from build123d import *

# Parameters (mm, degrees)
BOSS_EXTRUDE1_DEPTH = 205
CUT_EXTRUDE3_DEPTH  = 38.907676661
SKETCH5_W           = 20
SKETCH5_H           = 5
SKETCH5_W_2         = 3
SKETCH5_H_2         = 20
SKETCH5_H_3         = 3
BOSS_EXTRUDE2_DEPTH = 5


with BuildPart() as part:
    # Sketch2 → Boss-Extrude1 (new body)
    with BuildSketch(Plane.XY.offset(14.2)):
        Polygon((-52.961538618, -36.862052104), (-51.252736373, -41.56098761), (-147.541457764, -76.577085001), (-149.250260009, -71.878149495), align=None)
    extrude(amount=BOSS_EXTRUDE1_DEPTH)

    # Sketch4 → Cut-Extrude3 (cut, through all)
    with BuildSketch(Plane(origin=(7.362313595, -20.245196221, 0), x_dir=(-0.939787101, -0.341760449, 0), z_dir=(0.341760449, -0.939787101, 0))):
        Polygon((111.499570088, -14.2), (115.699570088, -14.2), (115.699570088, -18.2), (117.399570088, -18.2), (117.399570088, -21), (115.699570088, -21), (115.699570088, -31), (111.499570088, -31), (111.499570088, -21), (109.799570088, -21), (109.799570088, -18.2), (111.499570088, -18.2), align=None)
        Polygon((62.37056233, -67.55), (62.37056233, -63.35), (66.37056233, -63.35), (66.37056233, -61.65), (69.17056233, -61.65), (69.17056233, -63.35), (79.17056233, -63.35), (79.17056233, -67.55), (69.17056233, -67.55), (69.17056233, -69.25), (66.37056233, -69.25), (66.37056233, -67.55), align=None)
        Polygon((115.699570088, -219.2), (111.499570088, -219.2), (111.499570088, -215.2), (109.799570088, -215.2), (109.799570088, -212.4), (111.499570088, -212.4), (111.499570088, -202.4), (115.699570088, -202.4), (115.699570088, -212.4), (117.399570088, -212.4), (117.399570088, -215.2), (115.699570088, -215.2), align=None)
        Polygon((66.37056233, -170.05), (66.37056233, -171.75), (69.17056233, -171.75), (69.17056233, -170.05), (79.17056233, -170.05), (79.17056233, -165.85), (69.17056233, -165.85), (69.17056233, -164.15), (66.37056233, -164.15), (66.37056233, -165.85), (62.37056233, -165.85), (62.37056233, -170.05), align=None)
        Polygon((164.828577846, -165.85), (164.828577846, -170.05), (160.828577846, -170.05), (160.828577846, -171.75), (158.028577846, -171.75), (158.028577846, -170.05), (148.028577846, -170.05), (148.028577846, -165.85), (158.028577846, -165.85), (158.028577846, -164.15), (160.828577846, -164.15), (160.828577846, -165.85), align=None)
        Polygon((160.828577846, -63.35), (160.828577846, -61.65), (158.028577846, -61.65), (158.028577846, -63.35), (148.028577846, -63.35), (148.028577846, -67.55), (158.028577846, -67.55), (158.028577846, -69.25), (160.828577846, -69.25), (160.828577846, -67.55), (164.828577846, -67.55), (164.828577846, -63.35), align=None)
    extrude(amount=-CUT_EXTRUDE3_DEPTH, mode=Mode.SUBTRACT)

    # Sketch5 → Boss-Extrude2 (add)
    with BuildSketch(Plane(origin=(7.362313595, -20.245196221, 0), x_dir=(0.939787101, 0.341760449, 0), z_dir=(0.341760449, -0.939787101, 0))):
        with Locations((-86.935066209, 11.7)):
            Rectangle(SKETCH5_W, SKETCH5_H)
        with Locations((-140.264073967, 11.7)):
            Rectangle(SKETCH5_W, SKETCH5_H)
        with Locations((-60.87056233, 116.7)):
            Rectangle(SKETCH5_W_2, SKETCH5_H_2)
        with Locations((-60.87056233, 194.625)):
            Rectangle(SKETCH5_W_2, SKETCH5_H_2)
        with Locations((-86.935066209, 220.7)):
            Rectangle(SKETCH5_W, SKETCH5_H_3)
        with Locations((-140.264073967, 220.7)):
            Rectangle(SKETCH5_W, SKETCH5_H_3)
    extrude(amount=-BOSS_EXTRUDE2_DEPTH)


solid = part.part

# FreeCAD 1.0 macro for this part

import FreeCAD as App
import Part
import Sketcher
from FreeCAD import Vector
Q = App.Units.Quantity


def add_polygon(sketch, points):
    """Adds a closed chain of lines whose ends are joined by coincident constraints."""
    first, n = sketch.GeometryCount, len(points)
    for a, b in zip(points, points[1:] + points[:1]):
        sketch.addGeometry(Part.LineSegment(App.Vector(*a, 0), App.Vector(*b, 0)), False)
    for i in range(n):
        sketch.addConstraint(Sketcher.Constraint("Coincident", first + i, 2, first + (i + 1) % n, 1))

doc = App.newDocument("Part")
body = doc.addObject("PartDesign::Body", "Body")

# Sketch on XY plane
sketch1 = body.newObject("Sketcher::SketchObject", "Sketch")
sketch1.AttachmentSupport = (doc.getObject("XY_Plane"), [""])
sketch1.MapMode = "FlatFace"
sketch1.AttachmentOffset = App.Placement(Vector(0, 0, 14.2), App.Rotation())
add_polygon(sketch1, [(-51, -42), (-53, -37), (-149, -72), (-148, -77)])  # lines 0-3
sketch1.addConstraint([
    Sketcher.Constraint("Perpendicular", 0, 1),
    Sketcher.Constraint("Perpendicular", 1, 2),
    Sketcher.Constraint("Perpendicular", 2, 3),
    Sketcher.Constraint("Distance", 0, Q("5 mm")),
    Sketcher.Constraint("DistanceX", 0, 2, -1, 1, Q("52.961539 mm")),
    Sketcher.Constraint("DistanceX", 1, 2, -1, 1, Q("149.25026 mm")),
    Sketcher.Constraint("DistanceY", 1, 2, -1, 1, Q("71.878149 mm")),
    Sketcher.Constraint("DistanceX", 2, 2, 0, 2, Q("94.579919 mm")),
])
pad1 = body.newObject("PartDesign::Pad", "Pad")
pad1.Profile = sketch1
pad1.Length = 205

# Sketch on an angled plane
sketch2 = body.newObject("Sketcher::SketchObject", "Sketch001")
sketch2.Placement = App.Placement(Vector(7.362314, -20.245196, 0), App.Rotation(Vector(-0.939787101, -0.341760449, 0), Vector(0, 0, -1), Vector(0.341760449, -0.939787101, 0), "ZXY"))
add_polygon(sketch2, [(115.7, -14.2), (111.5, -14.2), (111.5, -18.2), (109.8, -18.2), (109.8, -21), (111.5, -21), (111.5, -31), (115.7, -31), (115.7, -21), (117.4, -21), (117.4, -18.2), (115.7, -18.2)])  # lines 0-11
add_polygon(sketch2, [(62.4, -63.3), (62.4, -67.5), (66.4, -67.5), (66.4, -69.2), (69.2, -69.2), (69.2, -67.5), (79.2, -67.5), (79.2, -63.3), (69.2, -63.3), (69.2, -61.6), (66.4, -61.6), (66.4, -63.3)])  # lines 12-23
add_polygon(sketch2, [(111.5, -219.2), (115.7, -219.2), (115.7, -215.2), (117.4, -215.2), (117.4, -212.4), (115.7, -212.4), (115.7, -202.4), (111.5, -202.4), (111.5, -212.4), (109.8, -212.4), (109.8, -215.2), (111.5, -215.2)])  # lines 24-35
add_polygon(sketch2, [(66.4, -170), (66.4, -171.7), (69.2, -171.7), (69.2, -170), (79.2, -170), (79.2, -165.8), (69.2, -165.8), (69.2, -164.1), (66.4, -164.1), (66.4, -165.8), (62.4, -165.8), (62.4, -170)])  # lines 36-47
add_polygon(sketch2, [(164.8, -170), (164.8, -165.8), (160.8, -165.8), (160.8, -164.1), (158, -164.1), (158, -165.8), (148, -165.8), (148, -170), (158, -170), (158, -171.7), (160.8, -171.7), (160.8, -170)])  # lines 48-59
add_polygon(sketch2, [(160.8, -63.3), (160.8, -61.6), (158, -61.6), (158, -63.3), (148, -63.3), (148, -67.5), (158, -67.5), (158, -69.2), (160.8, -69.2), (160.8, -67.5), (164.8, -67.5), (164.8, -63.3)])  # lines 60-71
sketch2.addConstraint([
    Sketcher.Constraint("Horizontal", 0),
    Sketcher.Constraint("Vertical", 1),
    Sketcher.Constraint("Horizontal", 2),
    Sketcher.Constraint("Vertical", 3),
    Sketcher.Constraint("Horizontal", 4),
    Sketcher.Constraint("Vertical", 5),
    Sketcher.Constraint("Horizontal", 6),
    Sketcher.Constraint("Vertical", 7),
    Sketcher.Constraint("Horizontal", 8),
    Sketcher.Constraint("Vertical", 9),
    Sketcher.Constraint("Horizontal", 10),
    Sketcher.Constraint("Vertical", 11),
    Sketcher.Constraint("Vertical", 12),
    Sketcher.Constraint("Horizontal", 13),
    Sketcher.Constraint("Vertical", 14),
    Sketcher.Constraint("Horizontal", 15),
    Sketcher.Constraint("Vertical", 16),
    Sketcher.Constraint("Horizontal", 17),
    Sketcher.Constraint("Vertical", 18),
    Sketcher.Constraint("Horizontal", 19),
    Sketcher.Constraint("Vertical", 20),
    Sketcher.Constraint("Horizontal", 21),
    Sketcher.Constraint("Vertical", 22),
    Sketcher.Constraint("Horizontal", 23),
    Sketcher.Constraint("Horizontal", 24),
    Sketcher.Constraint("Vertical", 25),
    Sketcher.Constraint("Horizontal", 26),
    Sketcher.Constraint("Vertical", 27),
    Sketcher.Constraint("Horizontal", 28),
    Sketcher.Constraint("Vertical", 29),
    Sketcher.Constraint("Horizontal", 30),
    Sketcher.Constraint("Vertical", 31),
    Sketcher.Constraint("Horizontal", 32),
    Sketcher.Constraint("Vertical", 33),
    Sketcher.Constraint("Horizontal", 34),
    Sketcher.Constraint("Vertical", 35),
    Sketcher.Constraint("Vertical", 36),
    Sketcher.Constraint("Horizontal", 37),
    Sketcher.Constraint("Vertical", 38),
    Sketcher.Constraint("Horizontal", 39),
    Sketcher.Constraint("Vertical", 40),
    Sketcher.Constraint("Horizontal", 41),
    Sketcher.Constraint("Vertical", 42),
    Sketcher.Constraint("Horizontal", 43),
    Sketcher.Constraint("Vertical", 44),
    Sketcher.Constraint("Horizontal", 45),
    Sketcher.Constraint("Vertical", 46),
    Sketcher.Constraint("Horizontal", 47),
    Sketcher.Constraint("Vertical", 48),
    Sketcher.Constraint("Horizontal", 49),
    Sketcher.Constraint("Vertical", 50),
    Sketcher.Constraint("Horizontal", 51),
    Sketcher.Constraint("Vertical", 52),
    Sketcher.Constraint("Horizontal", 53),
    Sketcher.Constraint("Vertical", 54),
    Sketcher.Constraint("Horizontal", 55),
    Sketcher.Constraint("Vertical", 56),
    Sketcher.Constraint("Horizontal", 57),
    Sketcher.Constraint("Vertical", 58),
    Sketcher.Constraint("Horizontal", 59),
    Sketcher.Constraint("Vertical", 60),
    Sketcher.Constraint("Horizontal", 61),
    Sketcher.Constraint("Vertical", 62),
    Sketcher.Constraint("Horizontal", 63),
    Sketcher.Constraint("Vertical", 64),
    Sketcher.Constraint("Horizontal", 65),
    Sketcher.Constraint("Vertical", 66),
    Sketcher.Constraint("Horizontal", 67),
    Sketcher.Constraint("Vertical", 68),
    Sketcher.Constraint("Horizontal", 69),
    Sketcher.Constraint("Vertical", 70),
    Sketcher.Constraint("Horizontal", 71),
    Sketcher.Constraint("Horizontal", 4, 2, 7, 2),
    Sketcher.Constraint("Horizontal", 2, 2, 9, 2),
    Sketcher.Constraint("Horizontal", 13, 2, 16, 2),
    Sketcher.Constraint("Horizontal", 19, 2, 22, 2),
    Sketcher.Constraint("Horizontal", 28, 2, 31, 2),
    Sketcher.Constraint("Horizontal", 26, 2, 33, 2),
    Sketcher.Constraint("Horizontal", 41, 2, 44, 2),
    Sketcher.Constraint("Horizontal", 39, 2, 46, 2),
    Sketcher.Constraint("Horizontal", 45, 2, 48, 2),
    Sketcher.Constraint("Horizontal", 43, 2, 50, 2),
    Sketcher.Constraint("Horizontal", 49, 2, 52, 2),
    Sketcher.Constraint("Horizontal", 47, 2, 54, 2),
    Sketcher.Constraint("Horizontal", 37, 2, 56, 2),
    Sketcher.Constraint("Horizontal", 55, 2, 58, 2),
    Sketcher.Constraint("Horizontal", 21, 2, 60, 2),
    Sketcher.Constraint("Horizontal", 23, 2, 62, 2),
    Sketcher.Constraint("Horizontal", 17, 2, 64, 2),
    Sketcher.Constraint("Horizontal", 15, 2, 66, 2),
    Sketcher.Constraint("Horizontal", 65, 2, 68, 2),
    Sketcher.Constraint("Horizontal", 63, 2, 70, 2),
    Sketcher.Constraint("Vertical", 1, 2, 4, 2),
    Sketcher.Constraint("Vertical", 7, 2, 10, 2),
    Sketcher.Constraint("Vertical", 16, 2, 19, 2),
    Sketcher.Constraint("Vertical", 14, 2, 21, 2),
    Sketcher.Constraint("Vertical", 11, 2, 24, 2),
    Sketcher.Constraint("Vertical", 9, 2, 26, 2),
    Sketcher.Constraint("Vertical", 25, 2, 28, 2),
    Sketcher.Constraint("Vertical", 5, 2, 30, 2),
    Sketcher.Constraint("Vertical", 3, 2, 32, 2),
    Sketcher.Constraint("Vertical", 31, 2, 34, 2),
    Sketcher.Constraint("Vertical", 22, 2, 36, 2),
    Sketcher.Constraint("Vertical", 20, 2, 37, 2),
    Sketcher.Constraint("Vertical", 18, 2, 39, 2),
    Sketcher.Constraint("Vertical", 38, 2, 41, 2),
    Sketcher.Constraint("Vertical", 36, 2, 43, 2),
    Sketcher.Constraint("Vertical", 23, 2, 45, 2),
    Sketcher.Constraint("Vertical", 52, 2, 55, 2),
    Sketcher.Constraint("Vertical", 50, 2, 57, 2),
    Sketcher.Constraint("Vertical", 58, 2, 60, 2),
    Sketcher.Constraint("Vertical", 56, 2, 61, 2),
    Sketcher.Constraint("Vertical", 54, 2, 63, 2),
    Sketcher.Constraint("Vertical", 62, 2, 65, 2),
    Sketcher.Constraint("Vertical", 60, 2, 67, 2),
    Sketcher.Constraint("Vertical", 59, 2, 69, 2),
    Sketcher.Constraint("Equal", 4, 8),
    Sketcher.Constraint("Equal", 47, 49),
    Sketcher.Constraint("Equal", 43, 51),
    Sketcher.Constraint("Equal", 41, 53),
    Sketcher.Constraint("Equal", 71, 1),
    Sketcher.Constraint("Equal", 67, 3),
    Sketcher.Constraint("Equal", 65, 5),
    Sketcher.Constraint("Equal", 30, 12),
    Sketcher.Constraint("Equal", 34, 14),
    Sketcher.Constraint("Equal", 16, 20),
    Sketcher.Constraint("Equal", 11, 25),
    Sketcher.Constraint("Equal", 9, 27),
    Sketcher.Constraint("Equal", 7, 29),
    Sketcher.Constraint("Equal", 22, 36),
    Sketcher.Constraint("Equal", 18, 40),
    Sketcher.Constraint("Equal", 38, 42),
    Sketcher.Constraint("DistanceX", 13, 1, 13, 2, Q("4 mm")),
    Sketcher.Constraint("DistanceX", 17, 1, 17, 2, Q("10 mm")),
    Sketcher.Constraint("DistanceX", 0, 2, 0, 1, Q("4.2 mm")),
    Sketcher.Constraint("DistanceX", 2, 2, 2, 1, Q("1.7 mm")),
    Sketcher.Constraint("DistanceX", 15, 1, 15, 2, Q("2.8 mm")),
    Sketcher.Constraint("DistanceY", 3, 2, -1, 1, Q("21 mm")),
    Sketcher.Constraint("DistanceY", 24, 2, -1, 1, Q("219.2 mm")),
    Sketcher.Constraint("DistanceY", 12, 2, -1, 1, Q("67.55 mm")),
    Sketcher.Constraint("DistanceY", 36, 2, -1, 1, Q("171.75 mm")),
    Sketcher.Constraint("DistanceX", -1, 1, 0, 2, Q("111.49957 mm")),
    Sketcher.Constraint("DistanceX", -1, 1, 12, 2, Q("62.370562 mm")),
    Sketcher.Constraint("DistanceX", -1, 1, 48, 2, Q("164.828578 mm")),
])
pocket1 = body.newObject("PartDesign::Pocket", "Pocket")
pocket1.Profile = sketch2
pocket1.Type = "ThroughAll"

# Sketch on an angled plane
sketch3 = body.newObject("Sketcher::SketchObject", "Sketch002")
sketch3.Placement = App.Placement(Vector(7.362314, -20.245196, 0), App.Rotation(Vector(0.939787101, 0.341760449, 0), Vector(0, 0, 1), Vector(0.341760449, -0.939787101, 0), "ZXY"))
add_polygon(sketch3, [(-96.9, 14.2), (-96.9, 9.2), (-76.9, 9.2), (-76.9, 14.2)])  # lines 0-3
add_polygon(sketch3, [(-150.3, 14.2), (-150.3, 9.2), (-130.3, 9.2), (-130.3, 14.2)])  # lines 4-7
add_polygon(sketch3, [(-62.4, 126.7), (-62.4, 106.7), (-59.4, 106.7), (-59.4, 126.7)])  # lines 8-11
add_polygon(sketch3, [(-62.4, 204.6), (-62.4, 184.6), (-59.4, 184.6), (-59.4, 204.6)])  # lines 12-15
add_polygon(sketch3, [(-96.9, 222.2), (-96.9, 219.2), (-76.9, 219.2), (-76.9, 222.2)])  # lines 16-19
add_polygon(sketch3, [(-150.3, 222.2), (-150.3, 219.2), (-130.3, 219.2), (-130.3, 222.2)])  # lines 20-23
sketch3.addConstraint([
    Sketcher.Constraint("Vertical", 0),
    Sketcher.Constraint("Horizontal", 1),
    Sketcher.Constraint("Vertical", 2),
    Sketcher.Constraint("Horizontal", 3),
    Sketcher.Constraint("Vertical", 4),
    Sketcher.Constraint("Horizontal", 5),
    Sketcher.Constraint("Vertical", 6),
    Sketcher.Constraint("Horizontal", 7),
    Sketcher.Constraint("Vertical", 8),
    Sketcher.Constraint("Horizontal", 9),
    Sketcher.Constraint("Vertical", 10),
    Sketcher.Constraint("Horizontal", 11),
    Sketcher.Constraint("Vertical", 12),
    Sketcher.Constraint("Horizontal", 13),
    Sketcher.Constraint("Vertical", 14),
    Sketcher.Constraint("Horizontal", 15),
    Sketcher.Constraint("Vertical", 16),
    Sketcher.Constraint("Horizontal", 17),
    Sketcher.Constraint("Vertical", 18),
    Sketcher.Constraint("Horizontal", 19),
    Sketcher.Constraint("Vertical", 20),
    Sketcher.Constraint("Horizontal", 21),
    Sketcher.Constraint("Vertical", 22),
    Sketcher.Constraint("Horizontal", 23),
    Sketcher.Constraint("Horizontal", 1, 2, 4, 2),
    Sketcher.Constraint("Horizontal", 3, 2, 6, 2),
    Sketcher.Constraint("Horizontal", 17, 2, 20, 2),
    Sketcher.Constraint("Horizontal", 19, 2, 22, 2),
    Sketcher.Constraint("Vertical", 11, 2, 12, 2),
    Sketcher.Constraint("Vertical", 10, 2, 13, 2),
    Sketcher.Constraint("Vertical", 3, 2, 16, 2),
    Sketcher.Constraint("Vertical", 2, 2, 17, 2),
    Sketcher.Constraint("Vertical", 7, 2, 20, 2),
    Sketcher.Constraint("Vertical", 6, 2, 21, 2),
    Sketcher.Constraint("Equal", 3, 5),
    Sketcher.Constraint("Equal", 23, 8),
    Sketcher.Constraint("Equal", 10, 12),
    Sketcher.Constraint("Equal", 15, 16),
    Sketcher.Constraint("DistanceX", 1, 1, 1, 2, Q("20 mm")),
    Sketcher.Constraint("DistanceX", 9, 1, 9, 2, Q("3 mm")),
    Sketcher.Constraint("DistanceY", 0, 2, 0, 1, Q("5 mm")),
    Sketcher.Constraint("DistanceY", -1, 1, 0, 2, Q("9.2 mm")),
    Sketcher.Constraint("DistanceY", -1, 1, 8, 2, Q("106.7 mm")),
    Sketcher.Constraint("DistanceY", -1, 1, 16, 2, Q("219.2 mm")),
    Sketcher.Constraint("DistanceY", -1, 1, 12, 2, Q("184.625 mm")),
    Sketcher.Constraint("DistanceX", 6, 2, 8, 2, Q("67.893512 mm")),
    Sketcher.Constraint("DistanceX", 0, 2, -1, 1, Q("96.935066 mm")),
    Sketcher.Constraint("DistanceX", 4, 2, -1, 1, Q("150.264074 mm")),
])
pad2 = body.newObject("PartDesign::Pad", "Pad001")
pad2.Profile = sketch3
pad2.Length = 5
pad2.Reversed = True

doc.recompute()
